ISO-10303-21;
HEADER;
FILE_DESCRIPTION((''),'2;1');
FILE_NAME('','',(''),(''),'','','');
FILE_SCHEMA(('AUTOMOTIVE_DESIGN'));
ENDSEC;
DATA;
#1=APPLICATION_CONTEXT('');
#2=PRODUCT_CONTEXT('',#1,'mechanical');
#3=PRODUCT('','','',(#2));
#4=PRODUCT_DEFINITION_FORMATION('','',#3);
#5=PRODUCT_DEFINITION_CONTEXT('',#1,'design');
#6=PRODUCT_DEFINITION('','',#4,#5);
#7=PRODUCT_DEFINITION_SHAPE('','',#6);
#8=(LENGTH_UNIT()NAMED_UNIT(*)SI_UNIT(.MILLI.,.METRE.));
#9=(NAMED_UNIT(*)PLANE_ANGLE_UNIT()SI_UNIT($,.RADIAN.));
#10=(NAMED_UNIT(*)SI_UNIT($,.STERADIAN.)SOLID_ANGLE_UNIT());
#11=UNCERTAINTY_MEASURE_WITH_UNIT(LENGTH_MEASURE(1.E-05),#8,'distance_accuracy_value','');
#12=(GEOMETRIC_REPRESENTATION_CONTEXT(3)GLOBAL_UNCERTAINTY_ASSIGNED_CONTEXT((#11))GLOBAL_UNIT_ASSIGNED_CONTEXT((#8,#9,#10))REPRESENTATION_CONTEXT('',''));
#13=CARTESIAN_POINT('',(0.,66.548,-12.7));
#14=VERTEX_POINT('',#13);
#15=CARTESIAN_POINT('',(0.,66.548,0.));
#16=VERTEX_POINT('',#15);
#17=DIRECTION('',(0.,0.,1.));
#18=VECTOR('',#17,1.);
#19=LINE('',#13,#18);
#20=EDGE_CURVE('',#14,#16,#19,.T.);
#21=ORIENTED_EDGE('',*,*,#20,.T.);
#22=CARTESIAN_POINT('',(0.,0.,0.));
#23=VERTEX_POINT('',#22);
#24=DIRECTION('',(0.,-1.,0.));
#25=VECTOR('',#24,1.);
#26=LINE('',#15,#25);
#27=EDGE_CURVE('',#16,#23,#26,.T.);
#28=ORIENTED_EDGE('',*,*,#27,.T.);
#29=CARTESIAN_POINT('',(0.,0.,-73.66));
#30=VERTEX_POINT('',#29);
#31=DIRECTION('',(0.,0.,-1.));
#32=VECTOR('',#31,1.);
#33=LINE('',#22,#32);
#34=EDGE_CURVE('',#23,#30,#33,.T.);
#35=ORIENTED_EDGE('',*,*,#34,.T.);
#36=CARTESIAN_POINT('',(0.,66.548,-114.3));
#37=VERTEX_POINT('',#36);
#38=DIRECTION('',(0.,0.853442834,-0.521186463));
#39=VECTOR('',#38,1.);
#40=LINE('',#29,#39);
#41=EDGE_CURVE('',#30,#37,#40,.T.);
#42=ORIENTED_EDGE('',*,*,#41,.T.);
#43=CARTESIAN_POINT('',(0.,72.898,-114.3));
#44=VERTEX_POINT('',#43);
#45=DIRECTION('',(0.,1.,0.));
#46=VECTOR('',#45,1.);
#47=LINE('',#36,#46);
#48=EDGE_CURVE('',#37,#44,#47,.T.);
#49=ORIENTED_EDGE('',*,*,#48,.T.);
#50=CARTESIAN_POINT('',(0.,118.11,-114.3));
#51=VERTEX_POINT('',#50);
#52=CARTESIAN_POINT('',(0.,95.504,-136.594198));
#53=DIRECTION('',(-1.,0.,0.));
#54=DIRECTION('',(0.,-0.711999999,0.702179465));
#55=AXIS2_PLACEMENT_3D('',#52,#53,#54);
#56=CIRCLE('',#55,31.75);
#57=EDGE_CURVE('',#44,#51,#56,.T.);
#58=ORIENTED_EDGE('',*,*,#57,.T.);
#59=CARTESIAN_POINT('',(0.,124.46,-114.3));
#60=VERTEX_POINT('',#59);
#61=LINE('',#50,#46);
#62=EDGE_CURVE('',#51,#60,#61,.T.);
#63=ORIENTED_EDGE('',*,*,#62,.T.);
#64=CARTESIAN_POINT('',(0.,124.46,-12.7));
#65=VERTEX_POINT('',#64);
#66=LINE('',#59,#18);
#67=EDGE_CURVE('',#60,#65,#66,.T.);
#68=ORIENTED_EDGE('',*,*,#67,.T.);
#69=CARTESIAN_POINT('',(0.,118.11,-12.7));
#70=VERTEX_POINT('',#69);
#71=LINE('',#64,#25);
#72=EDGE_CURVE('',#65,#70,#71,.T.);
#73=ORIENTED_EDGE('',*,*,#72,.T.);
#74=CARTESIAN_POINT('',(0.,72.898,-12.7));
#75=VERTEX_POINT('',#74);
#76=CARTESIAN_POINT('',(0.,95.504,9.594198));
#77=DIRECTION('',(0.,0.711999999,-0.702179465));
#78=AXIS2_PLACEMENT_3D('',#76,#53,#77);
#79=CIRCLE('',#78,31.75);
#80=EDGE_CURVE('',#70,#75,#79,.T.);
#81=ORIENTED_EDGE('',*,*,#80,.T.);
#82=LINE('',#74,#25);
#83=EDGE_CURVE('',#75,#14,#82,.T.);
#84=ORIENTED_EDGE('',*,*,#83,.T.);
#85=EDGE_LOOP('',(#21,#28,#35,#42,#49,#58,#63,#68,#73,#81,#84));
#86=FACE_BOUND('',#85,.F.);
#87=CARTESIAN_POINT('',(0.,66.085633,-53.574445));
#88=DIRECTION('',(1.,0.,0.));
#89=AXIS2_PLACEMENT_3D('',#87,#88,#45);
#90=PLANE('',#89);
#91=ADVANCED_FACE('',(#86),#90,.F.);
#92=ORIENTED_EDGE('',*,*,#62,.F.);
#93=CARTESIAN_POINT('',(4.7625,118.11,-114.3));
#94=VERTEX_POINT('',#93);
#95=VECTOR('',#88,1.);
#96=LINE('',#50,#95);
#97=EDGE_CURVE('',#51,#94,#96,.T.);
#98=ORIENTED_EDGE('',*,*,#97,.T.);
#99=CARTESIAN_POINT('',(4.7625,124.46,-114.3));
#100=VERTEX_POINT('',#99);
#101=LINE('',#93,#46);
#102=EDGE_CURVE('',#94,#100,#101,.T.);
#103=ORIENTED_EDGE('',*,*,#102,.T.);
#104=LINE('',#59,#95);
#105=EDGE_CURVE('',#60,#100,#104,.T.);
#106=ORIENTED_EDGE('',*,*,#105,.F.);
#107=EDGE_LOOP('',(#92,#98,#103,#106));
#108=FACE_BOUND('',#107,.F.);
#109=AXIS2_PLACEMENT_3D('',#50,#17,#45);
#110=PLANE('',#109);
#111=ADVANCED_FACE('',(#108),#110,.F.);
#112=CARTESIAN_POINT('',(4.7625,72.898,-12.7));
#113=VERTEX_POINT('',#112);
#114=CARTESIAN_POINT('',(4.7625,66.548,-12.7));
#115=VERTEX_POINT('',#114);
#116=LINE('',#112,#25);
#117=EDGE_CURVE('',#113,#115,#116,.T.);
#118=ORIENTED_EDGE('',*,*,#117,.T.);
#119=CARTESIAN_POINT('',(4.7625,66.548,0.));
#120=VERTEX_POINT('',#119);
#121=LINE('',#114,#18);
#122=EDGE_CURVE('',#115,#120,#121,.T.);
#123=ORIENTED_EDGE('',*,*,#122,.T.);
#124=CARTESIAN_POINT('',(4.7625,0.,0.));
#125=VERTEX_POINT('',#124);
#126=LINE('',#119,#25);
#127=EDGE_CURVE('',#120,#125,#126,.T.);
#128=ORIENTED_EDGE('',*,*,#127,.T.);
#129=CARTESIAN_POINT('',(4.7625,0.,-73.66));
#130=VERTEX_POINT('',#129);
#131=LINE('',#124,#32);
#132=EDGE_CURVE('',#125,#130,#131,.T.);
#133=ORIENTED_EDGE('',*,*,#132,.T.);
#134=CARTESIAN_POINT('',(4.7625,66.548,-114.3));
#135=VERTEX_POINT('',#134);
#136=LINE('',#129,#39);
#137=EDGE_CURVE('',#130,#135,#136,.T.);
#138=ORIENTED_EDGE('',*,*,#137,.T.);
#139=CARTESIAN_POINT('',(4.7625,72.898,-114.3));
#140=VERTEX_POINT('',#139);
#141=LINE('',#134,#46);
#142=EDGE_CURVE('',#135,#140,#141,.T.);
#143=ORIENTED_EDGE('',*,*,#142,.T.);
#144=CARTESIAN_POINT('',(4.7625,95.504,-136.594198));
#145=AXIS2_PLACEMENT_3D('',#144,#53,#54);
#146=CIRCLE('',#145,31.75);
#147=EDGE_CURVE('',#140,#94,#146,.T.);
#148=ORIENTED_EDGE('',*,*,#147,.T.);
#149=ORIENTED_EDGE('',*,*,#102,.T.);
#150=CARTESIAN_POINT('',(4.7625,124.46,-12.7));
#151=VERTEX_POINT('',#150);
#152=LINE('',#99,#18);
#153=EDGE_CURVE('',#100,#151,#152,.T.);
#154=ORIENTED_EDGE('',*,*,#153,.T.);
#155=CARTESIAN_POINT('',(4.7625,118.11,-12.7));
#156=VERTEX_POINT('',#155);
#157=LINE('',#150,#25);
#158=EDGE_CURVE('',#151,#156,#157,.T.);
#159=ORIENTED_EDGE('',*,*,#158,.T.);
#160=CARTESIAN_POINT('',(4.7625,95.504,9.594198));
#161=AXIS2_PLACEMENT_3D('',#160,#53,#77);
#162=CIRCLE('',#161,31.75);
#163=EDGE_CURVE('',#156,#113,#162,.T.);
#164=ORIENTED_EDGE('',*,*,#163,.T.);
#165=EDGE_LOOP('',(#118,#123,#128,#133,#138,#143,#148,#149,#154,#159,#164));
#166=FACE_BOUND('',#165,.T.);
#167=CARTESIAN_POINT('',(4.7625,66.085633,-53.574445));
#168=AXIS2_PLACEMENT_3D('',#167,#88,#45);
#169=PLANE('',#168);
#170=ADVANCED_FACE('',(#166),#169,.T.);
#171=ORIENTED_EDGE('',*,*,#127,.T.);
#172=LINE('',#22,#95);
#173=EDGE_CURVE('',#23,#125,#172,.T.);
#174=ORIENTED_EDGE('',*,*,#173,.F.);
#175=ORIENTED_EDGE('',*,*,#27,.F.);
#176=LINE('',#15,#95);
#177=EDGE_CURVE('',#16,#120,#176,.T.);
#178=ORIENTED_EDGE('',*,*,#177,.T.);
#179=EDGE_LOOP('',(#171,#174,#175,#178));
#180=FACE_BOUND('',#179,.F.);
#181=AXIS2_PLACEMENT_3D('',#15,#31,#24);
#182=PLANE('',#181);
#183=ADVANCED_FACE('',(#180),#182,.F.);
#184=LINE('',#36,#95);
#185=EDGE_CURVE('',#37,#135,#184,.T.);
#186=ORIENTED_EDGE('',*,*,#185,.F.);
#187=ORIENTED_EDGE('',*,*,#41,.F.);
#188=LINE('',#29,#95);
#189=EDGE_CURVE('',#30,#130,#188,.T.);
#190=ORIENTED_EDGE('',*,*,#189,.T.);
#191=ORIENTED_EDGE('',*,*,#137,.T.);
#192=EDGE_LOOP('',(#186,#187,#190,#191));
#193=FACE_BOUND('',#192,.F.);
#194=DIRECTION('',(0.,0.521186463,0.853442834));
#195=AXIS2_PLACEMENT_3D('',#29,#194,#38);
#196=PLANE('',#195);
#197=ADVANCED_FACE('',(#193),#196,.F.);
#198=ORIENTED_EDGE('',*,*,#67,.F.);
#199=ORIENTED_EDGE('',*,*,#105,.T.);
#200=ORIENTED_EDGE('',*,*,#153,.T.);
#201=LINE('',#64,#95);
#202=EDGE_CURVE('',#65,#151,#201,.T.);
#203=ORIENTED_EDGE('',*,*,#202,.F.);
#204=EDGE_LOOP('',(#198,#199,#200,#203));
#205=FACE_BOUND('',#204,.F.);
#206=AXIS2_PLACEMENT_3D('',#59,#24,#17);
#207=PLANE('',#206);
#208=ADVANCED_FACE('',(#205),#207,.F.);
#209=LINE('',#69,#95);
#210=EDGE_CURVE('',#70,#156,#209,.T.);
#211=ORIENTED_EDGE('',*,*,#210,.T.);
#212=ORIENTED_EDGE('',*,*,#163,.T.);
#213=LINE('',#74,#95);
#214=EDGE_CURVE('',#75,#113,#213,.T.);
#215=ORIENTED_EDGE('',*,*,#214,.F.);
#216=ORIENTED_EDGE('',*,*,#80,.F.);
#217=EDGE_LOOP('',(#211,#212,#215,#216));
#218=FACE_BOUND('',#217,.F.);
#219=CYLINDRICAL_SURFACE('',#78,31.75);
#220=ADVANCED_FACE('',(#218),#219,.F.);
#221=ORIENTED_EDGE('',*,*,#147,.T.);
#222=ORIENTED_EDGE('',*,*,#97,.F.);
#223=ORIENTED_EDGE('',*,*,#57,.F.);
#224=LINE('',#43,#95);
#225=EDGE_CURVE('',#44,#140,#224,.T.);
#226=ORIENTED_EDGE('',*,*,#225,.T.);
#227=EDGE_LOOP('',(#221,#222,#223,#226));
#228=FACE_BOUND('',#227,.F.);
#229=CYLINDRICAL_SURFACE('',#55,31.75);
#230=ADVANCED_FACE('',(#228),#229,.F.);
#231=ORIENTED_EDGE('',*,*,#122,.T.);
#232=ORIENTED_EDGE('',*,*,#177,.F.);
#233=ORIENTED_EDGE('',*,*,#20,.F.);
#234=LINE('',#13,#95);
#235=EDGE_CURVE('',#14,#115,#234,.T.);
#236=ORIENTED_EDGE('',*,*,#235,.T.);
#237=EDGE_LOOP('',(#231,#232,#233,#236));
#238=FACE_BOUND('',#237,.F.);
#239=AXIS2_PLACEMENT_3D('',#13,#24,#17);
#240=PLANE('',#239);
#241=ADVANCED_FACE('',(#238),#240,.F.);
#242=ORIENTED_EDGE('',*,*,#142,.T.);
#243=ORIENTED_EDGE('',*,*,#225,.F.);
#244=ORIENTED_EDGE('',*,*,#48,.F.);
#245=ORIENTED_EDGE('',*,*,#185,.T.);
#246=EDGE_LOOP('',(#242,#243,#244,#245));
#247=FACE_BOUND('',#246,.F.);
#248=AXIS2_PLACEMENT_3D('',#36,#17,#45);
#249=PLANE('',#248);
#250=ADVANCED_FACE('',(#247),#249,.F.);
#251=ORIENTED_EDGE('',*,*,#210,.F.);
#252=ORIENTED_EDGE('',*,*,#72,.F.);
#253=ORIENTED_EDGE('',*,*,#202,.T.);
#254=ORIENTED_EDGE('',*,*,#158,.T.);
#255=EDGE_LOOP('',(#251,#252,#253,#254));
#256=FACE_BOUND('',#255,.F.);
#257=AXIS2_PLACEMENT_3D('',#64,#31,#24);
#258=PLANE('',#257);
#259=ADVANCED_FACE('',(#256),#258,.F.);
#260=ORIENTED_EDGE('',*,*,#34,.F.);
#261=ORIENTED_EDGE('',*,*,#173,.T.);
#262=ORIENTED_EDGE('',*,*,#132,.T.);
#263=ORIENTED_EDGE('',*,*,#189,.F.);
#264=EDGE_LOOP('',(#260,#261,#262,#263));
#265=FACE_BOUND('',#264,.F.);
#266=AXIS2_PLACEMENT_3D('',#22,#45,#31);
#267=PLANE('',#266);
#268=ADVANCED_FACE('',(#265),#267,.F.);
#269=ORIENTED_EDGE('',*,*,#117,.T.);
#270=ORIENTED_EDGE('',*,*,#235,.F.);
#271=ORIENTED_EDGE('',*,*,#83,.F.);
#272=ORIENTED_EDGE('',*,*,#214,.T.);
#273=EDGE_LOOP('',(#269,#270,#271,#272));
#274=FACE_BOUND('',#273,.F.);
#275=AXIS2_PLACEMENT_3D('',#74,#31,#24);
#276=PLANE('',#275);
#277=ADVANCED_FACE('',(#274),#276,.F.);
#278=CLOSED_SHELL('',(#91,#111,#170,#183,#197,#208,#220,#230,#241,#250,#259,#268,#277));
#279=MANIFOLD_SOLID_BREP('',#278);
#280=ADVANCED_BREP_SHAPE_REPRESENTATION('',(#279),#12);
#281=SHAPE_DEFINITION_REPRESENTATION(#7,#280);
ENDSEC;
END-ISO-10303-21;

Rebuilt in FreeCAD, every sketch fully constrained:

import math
import FreeCAD as App
import Part
import Sketcher
Q = App.Units.Quantity

doc = App.newDocument("Part")
body = doc.addObject("PartDesign::Body", "Body")

sketch1 = doc.addObject("Sketcher::SketchObject", "Sketch")
body.addObject(sketch1)
sketch1.AttachmentSupport = (doc.YZ_Plane, [""])
sketch1.MapMode = "FlatFace"
sketch1.addGeometry(Part.LineSegment(App.Vector(118, -114, 0), App.Vector(124, -114, 0)), False)
sketch1.addGeometry(Part.LineSegment(App.Vector(124, -114, 0), App.Vector(124, -13, 0)), False)
sketch1.addGeometry(Part.LineSegment(App.Vector(124, -13, 0), App.Vector(118, -13, 0)), False)
sketch1.addGeometry(Part.ArcOfCircle(Part.Circle(App.Vector(96, 10, 0), App.Vector(0, 0, 1), 32), math.radians(-135), math.radians(-45)), False)
sketch1.addGeometry(Part.LineSegment(App.Vector(73, -13, 0), App.Vector(67, -13, 0)), False)
sketch1.addGeometry(Part.LineSegment(App.Vector(67, -13, 0), App.Vector(67, 0, 0)), False)
sketch1.addGeometry(Part.LineSegment(App.Vector(67, 0, 0), App.Vector(0, 0, 0)), False)
sketch1.addGeometry(Part.LineSegment(App.Vector(0, 0, 0), App.Vector(0, -74, 0)), False)
sketch1.addGeometry(Part.LineSegment(App.Vector(0, -74, 0), App.Vector(67, -114, 0)), False)
sketch1.addGeometry(Part.LineSegment(App.Vector(67, -114, 0), App.Vector(73, -114, 0)), False)
sketch1.addGeometry(Part.ArcOfCircle(Part.Circle(App.Vector(96, -137, 0), App.Vector(0, 0, 1), 32), math.radians(45), math.radians(135)), False)
sketch1.addConstraint(Sketcher.Constraint("Coincident", 0, 2, 1, 1))
sketch1.addConstraint(Sketcher.Constraint("Coincident", 1, 2, 2, 1))
sketch1.addConstraint(Sketcher.Constraint("Coincident", 2, 2, 3, 2))
sketch1.addConstraint(Sketcher.Constraint("Coincident", 3, 1, 4, 1))
sketch1.addConstraint(Sketcher.Constraint("Coincident", 4, 2, 5, 1))
sketch1.addConstraint(Sketcher.Constraint("Coincident", 5, 2, 6, 1))
sketch1.addConstraint(Sketcher.Constraint("Coincident", 6, 2, 7, 1))
sketch1.addConstraint(Sketcher.Constraint("Coincident", 7, 2, 8, 1))
sketch1.addConstraint(Sketcher.Constraint("Coincident", 8, 2, 9, 1))
sketch1.addConstraint(Sketcher.Constraint("Coincident", 9, 2, 10, 2))
sketch1.addConstraint(Sketcher.Constraint("Coincident", 10, 1, 0, 1))
sketch1.addConstraint(Sketcher.Constraint("Horizontal", 0))
sketch1.addConstraint(Sketcher.Constraint("Vertical", 1))
sketch1.addConstraint(Sketcher.Constraint("Horizontal", 2))
sketch1.addConstraint(Sketcher.Constraint("Horizontal", 4))
sketch1.addConstraint(Sketcher.Constraint("Vertical", 5))
sketch1.addConstraint(Sketcher.Constraint("Horizontal", 6))
sketch1.addConstraint(Sketcher.Constraint("Vertical", 7))
sketch1.addConstraint(Sketcher.Constraint("Horizontal", 9))
sketch1.addConstraint(Sketcher.Constraint("Coincident", 6, 2, -1, 1))
sketch1.addConstraint(Sketcher.Constraint("Equal", 3, 10))
sketch1.addConstraint(Sketcher.Constraint("Horizontal", 2, 2, 3, 1))
sketch1.addConstraint(Sketcher.Constraint("Horizontal", 0, 2, 8, 2))
sketch1.addConstraint(Sketcher.Constraint("Vertical", 3, 3, 10, 3))
sketch1.addConstraint(Sketcher.Constraint("Vertical", 5, 2, 8, 2))
sketch1.addConstraint(Sketcher.Constraint("Vertical", 3, 1, 9, 2))
sketch1.addConstraint(Sketcher.Constraint("Equal", 2, 4))
sketch1.addConstraint(Sketcher.Constraint("DistanceY", 1, 1, 1, 2, Q("4 in")))
sketch1.addConstraint(Sketcher.Constraint("Radius", 3, Q("1.25 in")))
sketch1.addConstraint(Sketcher.Constraint("DistanceY", 5, 1, 5, 2, Q("0.5 in")))
sketch1.addConstraint(Sketcher.Constraint("DistanceY", 7, 2, 7, 1, Q("2.9 in")))
sketch1.addConstraint(Sketcher.Constraint("DistanceX", 0, 1, 0, 2, Q("0.25 in")))
sketch1.addConstraint(Sketcher.Constraint("DistanceX", 6, 2, 6, 1, Q("2.62 in")))
sketch1.addConstraint(Sketcher.Constraint("DistanceX", -1, 1, 0, 2, Q("4.9 in")))
pad1 = doc.addObject("PartDesign::Pad", "Pad")
body.addObject(pad1)
pad1.Profile = sketch1
pad1.Length = Q("0.1875 in")

doc.recompute()
